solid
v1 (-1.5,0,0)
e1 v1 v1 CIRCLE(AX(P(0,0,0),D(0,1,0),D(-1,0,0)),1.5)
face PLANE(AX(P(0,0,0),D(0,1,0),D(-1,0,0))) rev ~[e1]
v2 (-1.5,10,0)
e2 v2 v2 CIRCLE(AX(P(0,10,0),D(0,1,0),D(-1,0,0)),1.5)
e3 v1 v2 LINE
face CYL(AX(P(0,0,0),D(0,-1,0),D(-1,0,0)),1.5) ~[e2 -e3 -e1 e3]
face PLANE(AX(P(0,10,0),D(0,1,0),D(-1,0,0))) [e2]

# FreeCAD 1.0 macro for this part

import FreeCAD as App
import Part
import Sketcher

doc = App.newDocument("Part")
body = doc.addObject("PartDesign::Body", "Body")

sketch1 = body.newObject("Sketcher::SketchObject", "Sketch")
sketch1.AttachmentSupport = (doc.getObject("XZ_Plane"), [""])
sketch1.MapMode = "FlatFace"
sketch1.addGeometry(Part.Circle(App.Vector(0, 0, 0), App.Vector(0, 0, 1), 1.5), False)
sketch1.addConstraint(Sketcher.Constraint("Coincident", 0, 3, -1, 1))
sketch1.addConstraint(Sketcher.Constraint("Diameter", 0, 3.0))
pad1 = body.newObject("PartDesign::Pad", "Pad")
pad1.Profile = sketch1
pad1.Length = 10
pad1.Reversed = True

doc.recompute()
